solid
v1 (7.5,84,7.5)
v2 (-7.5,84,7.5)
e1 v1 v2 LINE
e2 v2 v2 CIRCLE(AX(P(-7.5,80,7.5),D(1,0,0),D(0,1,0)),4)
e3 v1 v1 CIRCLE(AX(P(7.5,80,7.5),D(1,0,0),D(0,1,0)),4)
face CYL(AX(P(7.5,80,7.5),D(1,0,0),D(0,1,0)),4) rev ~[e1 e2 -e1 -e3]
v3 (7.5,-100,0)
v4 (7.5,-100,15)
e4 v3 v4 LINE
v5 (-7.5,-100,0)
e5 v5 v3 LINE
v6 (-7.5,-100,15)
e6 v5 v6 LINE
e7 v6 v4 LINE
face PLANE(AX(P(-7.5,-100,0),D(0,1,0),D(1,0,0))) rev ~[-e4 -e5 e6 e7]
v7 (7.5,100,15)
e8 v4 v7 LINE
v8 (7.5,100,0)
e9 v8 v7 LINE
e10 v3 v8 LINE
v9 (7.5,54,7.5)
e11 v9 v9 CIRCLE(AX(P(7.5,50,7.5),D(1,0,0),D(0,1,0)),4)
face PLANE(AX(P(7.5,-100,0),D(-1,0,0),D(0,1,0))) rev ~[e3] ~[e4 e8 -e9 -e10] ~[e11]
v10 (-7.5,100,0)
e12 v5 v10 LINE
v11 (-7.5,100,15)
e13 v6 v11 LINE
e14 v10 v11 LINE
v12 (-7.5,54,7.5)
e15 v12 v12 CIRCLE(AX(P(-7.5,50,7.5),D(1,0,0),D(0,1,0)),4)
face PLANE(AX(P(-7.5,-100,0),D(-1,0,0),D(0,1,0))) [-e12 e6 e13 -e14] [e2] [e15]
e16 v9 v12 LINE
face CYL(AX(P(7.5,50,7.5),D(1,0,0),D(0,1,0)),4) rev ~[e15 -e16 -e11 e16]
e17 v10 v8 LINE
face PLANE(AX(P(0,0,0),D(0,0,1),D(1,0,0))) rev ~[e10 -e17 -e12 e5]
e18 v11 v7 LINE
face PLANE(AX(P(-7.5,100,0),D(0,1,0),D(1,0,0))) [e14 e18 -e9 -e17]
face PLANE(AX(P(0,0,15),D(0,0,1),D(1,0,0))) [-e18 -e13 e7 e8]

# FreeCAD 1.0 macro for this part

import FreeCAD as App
import Part
import Sketcher
from FreeCAD import Vector
Q = App.Units.Quantity


def add_polygon(sketch, points):
    """Adds a closed chain of lines whose ends are joined by coincident constraints."""
    first, n = sketch.GeometryCount, len(points)
    for a, b in zip(points, points[1:] + points[:1]):
        sketch.addGeometry(Part.LineSegment(App.Vector(*a, 0), App.Vector(*b, 0)), False)
    for i in range(n):
        sketch.addConstraint(Sketcher.Constraint("Coincident", first + i, 2, first + (i + 1) % n, 1))

doc = App.newDocument("Part")
body = doc.addObject("PartDesign::Body", "Body")

# Sketch on XY plane
sketch1 = body.newObject("Sketcher::SketchObject", "Sketch")
sketch1.AttachmentSupport = (doc.getObject("XY_Plane"), [""])
sketch1.MapMode = "FlatFace"
add_polygon(sketch1, [(-8, 100), (-8, -100), (8, -100), (8, 100)])  # lines 0-3
sketch1.addConstraint([
    Sketcher.Constraint("Vertical", 0),
    Sketcher.Constraint("Horizontal", 1),
    Sketcher.Constraint("Vertical", 2),
    Sketcher.Constraint("Horizontal", 3),
    Sketcher.Constraint("Symmetric", 0, 2, 2, 2, -1, 1),
    Sketcher.Constraint("DistanceX", 1, 1, 1, 2, Q("15 mm")),
    Sketcher.Constraint("DistanceY", 0, 2, 0, 1, Q("200 mm")),
])
pad1 = body.newObject("PartDesign::Pad", "Pad")
pad1.Profile = sketch1
pad1.Length = 15

# Sketch on YZ plane
sketch2 = body.newObject("Sketcher::SketchObject", "Sketch001")
sketch2.AttachmentSupport = (doc.getObject("YZ_Plane"), [""])
sketch2.MapMode = "FlatFace"
sketch2.AttachmentOffset = App.Placement(Vector(0, 0, 7.5), App.Rotation())
sketch2.addGeometry([
    Part.Circle(Vector(50, 7.5, 0), Vector(0, 0, 1), 4),
    Part.Circle(Vector(80, 7.5, 0), Vector(0, 0, 1), 4),
], False)
sketch2.addConstraint([
    Sketcher.Constraint("Equal", 0, 1),
    Sketcher.Constraint("Horizontal", 0, 3, 1, 3),
    Sketcher.Constraint("Diameter", 0, Q("8 mm")),
    Sketcher.Constraint("DistanceX", -1, 1, 0, 3, Q("50 mm")),
    Sketcher.Constraint("DistanceX", -1, 1, 1, 3, Q("80 mm")),
    Sketcher.Constraint("DistanceY", -1, 1, 0, 3, Q("7.5 mm")),
])
pocket1 = body.newObject("PartDesign::Pocket", "Pocket")
pocket1.Profile = sketch2
pocket1.Type = "ThroughAll"

doc.recompute()
